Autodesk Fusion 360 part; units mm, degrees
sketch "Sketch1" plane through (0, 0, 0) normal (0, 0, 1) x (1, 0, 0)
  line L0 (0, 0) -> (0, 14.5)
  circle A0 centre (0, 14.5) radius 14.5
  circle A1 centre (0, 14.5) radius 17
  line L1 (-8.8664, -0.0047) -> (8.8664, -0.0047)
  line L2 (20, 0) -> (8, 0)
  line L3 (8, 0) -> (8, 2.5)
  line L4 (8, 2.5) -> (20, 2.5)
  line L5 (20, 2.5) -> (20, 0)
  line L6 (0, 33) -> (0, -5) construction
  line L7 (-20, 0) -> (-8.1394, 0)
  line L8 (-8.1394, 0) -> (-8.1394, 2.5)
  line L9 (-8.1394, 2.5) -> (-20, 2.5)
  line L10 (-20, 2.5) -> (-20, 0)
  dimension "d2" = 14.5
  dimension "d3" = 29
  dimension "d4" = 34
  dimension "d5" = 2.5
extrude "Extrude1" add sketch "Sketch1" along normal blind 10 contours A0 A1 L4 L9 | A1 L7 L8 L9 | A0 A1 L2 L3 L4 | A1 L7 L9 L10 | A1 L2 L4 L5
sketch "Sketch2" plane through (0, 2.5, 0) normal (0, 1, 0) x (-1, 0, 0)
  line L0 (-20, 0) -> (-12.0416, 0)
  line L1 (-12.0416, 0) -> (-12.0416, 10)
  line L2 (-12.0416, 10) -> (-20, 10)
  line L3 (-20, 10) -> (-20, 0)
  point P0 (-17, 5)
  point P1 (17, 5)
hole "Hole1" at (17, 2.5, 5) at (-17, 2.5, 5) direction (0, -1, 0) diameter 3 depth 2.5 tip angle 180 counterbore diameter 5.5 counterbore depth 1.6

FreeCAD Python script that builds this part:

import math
import FreeCAD as App
import Part
import Sketcher

V = App.Vector
Q = App.Units.Quantity

doc = App.newDocument("Part")
body = doc.addObject("PartDesign::Body", "Body")

sketch1 = doc.addObject("Sketcher::SketchObject", "Sketch")
body.addObject(sketch1)
sketch1.AttachmentSupport = (doc.XY_Plane, [""])
sketch1.MapMode = "FlatFace"
sketch1.addGeometry([
    Part.ArcOfCircle(Part.Circle(V(0, 14.5, 0), V(0, 0, 1), 14.5), math.radians(-57), math.radians(236)),
    Part.LineSegment(V(8, 2.4, 0), V(8, 0, 0)),
    Part.LineSegment(V(8, 0, 0), V(20, 0, 0)),
    Part.LineSegment(V(20, 0, 0), V(20, 2.5, 0)),
    Part.LineSegment(V(20, 2.5, 0), V(12, 2.5, 0)),
    Part.ArcOfCircle(Part.Circle(V(0, 14.5, 0), V(0, 0, 1), 17), math.radians(-45), math.radians(225)),
    Part.LineSegment(V(-12, 2.5, 0), V(-20, 2.5, 0)),
    Part.LineSegment(V(-20, 2.5, 0), V(-20, 0, 0)),
    Part.LineSegment(V(-20, 0, 0), V(-8.1, 0, 0)),
    Part.LineSegment(V(-8.1, 0, 0), V(-8.1, 2.5, 0)),
], False)
sketch1.addConstraint([
    Sketcher.Constraint("Coincident", 0, 1, 1, 1),
    Sketcher.Constraint("Coincident", 1, 2, 2, 1),
    Sketcher.Constraint("Coincident", 2, 2, 3, 1),
    Sketcher.Constraint("Coincident", 3, 2, 4, 1),
    Sketcher.Constraint("Coincident", 4, 2, 5, 1),
    Sketcher.Constraint("Coincident", 5, 2, 6, 1),
    Sketcher.Constraint("Coincident", 6, 2, 7, 1),
    Sketcher.Constraint("Coincident", 7, 2, 8, 1),
    Sketcher.Constraint("Coincident", 8, 2, 9, 1),
    Sketcher.Constraint("Coincident", 9, 2, 0, 2),
    Sketcher.Constraint("Vertical", 1),
    Sketcher.Constraint("Horizontal", 2),
    Sketcher.Constraint("Vertical", 3),
    Sketcher.Constraint("Horizontal", 4),
    Sketcher.Constraint("Horizontal", 6),
    Sketcher.Constraint("Vertical", 7),
    Sketcher.Constraint("Horizontal", 8),
    Sketcher.Constraint("Vertical", 9),
    Sketcher.Constraint("Coincident", 5, 3, 0, 3),
    Sketcher.Constraint("Symmetric", 2, 2, 7, 2, -1, 1),
    Sketcher.Constraint("Symmetric", 4, 2, 5, 2, -2),
    Sketcher.Constraint("PointOnObject", 1, 2, -1),
    Sketcher.Constraint("Horizontal", 6, 2, 9, 2),
    Sketcher.Constraint("Radius", 5, Q("17 mm")),
    Sketcher.Constraint("Radius", 0, Q("14.5 mm")),
    Sketcher.Constraint("DistanceY", 3, 1, 3, 2, Q("2.5 mm")),
    Sketcher.Constraint("DistanceY", -1, 1, 0, 3, Q("14.5 mm")),
    Sketcher.Constraint("DistanceX", 2, 1, 2, 2, Q("12 mm")),
    Sketcher.Constraint("DistanceX", -1, 1, 0, 1, Q("8 mm")),
])
pad1 = doc.addObject("PartDesign::Pad", "Pad")
body.addObject(pad1)
pad1.Profile = sketch1
pad1.Length = 10

sketch2 = doc.addObject("Sketcher::SketchObject", "Sketch001")
body.addObject(sketch2)
sketch2.AttachmentSupport = (doc.XZ_Plane, [""])
sketch2.MapMode = "FlatFace"
sketch2.AttachmentOffset = App.Placement(V(0, 0, -2.5), App.Rotation())
sketch2.addGeometry([
    Part.Circle(V(17, 5, 0), V(0, 0, 1), 1.5),
    Part.Circle(V(-17, 5, 0), V(0, 0, 1), 1.5),
], False)
sketch2.addConstraint([
    Sketcher.Constraint("Equal", 0, 1),
    Sketcher.Constraint("Symmetric", 0, 3, 1, 3, -2),
    Sketcher.Constraint("Diameter", 0, Q("3 mm")),
    Sketcher.Constraint("DistanceX", -1, 1, 0, 3, Q("17 mm")),
    Sketcher.Constraint("DistanceY", -1, 1, 0, 3, Q("5 mm")),
])
doc.recompute()
hole = doc.addObject("PartDesign::Hole", "Hole")
body.addObject(hole)
hole.Profile = sketch2
hole.ThreadType = "None"
hole.Diameter = 3
hole.DepthType = "Dimension"
hole.Depth = 2.5
hole.DrillPoint = "Flat"
hole.HoleCutType = "Counterbore"
hole.HoleCutDiameter = 5.5
hole.HoleCutDepth = 1.6
hole.Reversed = True

doc.recompute()
